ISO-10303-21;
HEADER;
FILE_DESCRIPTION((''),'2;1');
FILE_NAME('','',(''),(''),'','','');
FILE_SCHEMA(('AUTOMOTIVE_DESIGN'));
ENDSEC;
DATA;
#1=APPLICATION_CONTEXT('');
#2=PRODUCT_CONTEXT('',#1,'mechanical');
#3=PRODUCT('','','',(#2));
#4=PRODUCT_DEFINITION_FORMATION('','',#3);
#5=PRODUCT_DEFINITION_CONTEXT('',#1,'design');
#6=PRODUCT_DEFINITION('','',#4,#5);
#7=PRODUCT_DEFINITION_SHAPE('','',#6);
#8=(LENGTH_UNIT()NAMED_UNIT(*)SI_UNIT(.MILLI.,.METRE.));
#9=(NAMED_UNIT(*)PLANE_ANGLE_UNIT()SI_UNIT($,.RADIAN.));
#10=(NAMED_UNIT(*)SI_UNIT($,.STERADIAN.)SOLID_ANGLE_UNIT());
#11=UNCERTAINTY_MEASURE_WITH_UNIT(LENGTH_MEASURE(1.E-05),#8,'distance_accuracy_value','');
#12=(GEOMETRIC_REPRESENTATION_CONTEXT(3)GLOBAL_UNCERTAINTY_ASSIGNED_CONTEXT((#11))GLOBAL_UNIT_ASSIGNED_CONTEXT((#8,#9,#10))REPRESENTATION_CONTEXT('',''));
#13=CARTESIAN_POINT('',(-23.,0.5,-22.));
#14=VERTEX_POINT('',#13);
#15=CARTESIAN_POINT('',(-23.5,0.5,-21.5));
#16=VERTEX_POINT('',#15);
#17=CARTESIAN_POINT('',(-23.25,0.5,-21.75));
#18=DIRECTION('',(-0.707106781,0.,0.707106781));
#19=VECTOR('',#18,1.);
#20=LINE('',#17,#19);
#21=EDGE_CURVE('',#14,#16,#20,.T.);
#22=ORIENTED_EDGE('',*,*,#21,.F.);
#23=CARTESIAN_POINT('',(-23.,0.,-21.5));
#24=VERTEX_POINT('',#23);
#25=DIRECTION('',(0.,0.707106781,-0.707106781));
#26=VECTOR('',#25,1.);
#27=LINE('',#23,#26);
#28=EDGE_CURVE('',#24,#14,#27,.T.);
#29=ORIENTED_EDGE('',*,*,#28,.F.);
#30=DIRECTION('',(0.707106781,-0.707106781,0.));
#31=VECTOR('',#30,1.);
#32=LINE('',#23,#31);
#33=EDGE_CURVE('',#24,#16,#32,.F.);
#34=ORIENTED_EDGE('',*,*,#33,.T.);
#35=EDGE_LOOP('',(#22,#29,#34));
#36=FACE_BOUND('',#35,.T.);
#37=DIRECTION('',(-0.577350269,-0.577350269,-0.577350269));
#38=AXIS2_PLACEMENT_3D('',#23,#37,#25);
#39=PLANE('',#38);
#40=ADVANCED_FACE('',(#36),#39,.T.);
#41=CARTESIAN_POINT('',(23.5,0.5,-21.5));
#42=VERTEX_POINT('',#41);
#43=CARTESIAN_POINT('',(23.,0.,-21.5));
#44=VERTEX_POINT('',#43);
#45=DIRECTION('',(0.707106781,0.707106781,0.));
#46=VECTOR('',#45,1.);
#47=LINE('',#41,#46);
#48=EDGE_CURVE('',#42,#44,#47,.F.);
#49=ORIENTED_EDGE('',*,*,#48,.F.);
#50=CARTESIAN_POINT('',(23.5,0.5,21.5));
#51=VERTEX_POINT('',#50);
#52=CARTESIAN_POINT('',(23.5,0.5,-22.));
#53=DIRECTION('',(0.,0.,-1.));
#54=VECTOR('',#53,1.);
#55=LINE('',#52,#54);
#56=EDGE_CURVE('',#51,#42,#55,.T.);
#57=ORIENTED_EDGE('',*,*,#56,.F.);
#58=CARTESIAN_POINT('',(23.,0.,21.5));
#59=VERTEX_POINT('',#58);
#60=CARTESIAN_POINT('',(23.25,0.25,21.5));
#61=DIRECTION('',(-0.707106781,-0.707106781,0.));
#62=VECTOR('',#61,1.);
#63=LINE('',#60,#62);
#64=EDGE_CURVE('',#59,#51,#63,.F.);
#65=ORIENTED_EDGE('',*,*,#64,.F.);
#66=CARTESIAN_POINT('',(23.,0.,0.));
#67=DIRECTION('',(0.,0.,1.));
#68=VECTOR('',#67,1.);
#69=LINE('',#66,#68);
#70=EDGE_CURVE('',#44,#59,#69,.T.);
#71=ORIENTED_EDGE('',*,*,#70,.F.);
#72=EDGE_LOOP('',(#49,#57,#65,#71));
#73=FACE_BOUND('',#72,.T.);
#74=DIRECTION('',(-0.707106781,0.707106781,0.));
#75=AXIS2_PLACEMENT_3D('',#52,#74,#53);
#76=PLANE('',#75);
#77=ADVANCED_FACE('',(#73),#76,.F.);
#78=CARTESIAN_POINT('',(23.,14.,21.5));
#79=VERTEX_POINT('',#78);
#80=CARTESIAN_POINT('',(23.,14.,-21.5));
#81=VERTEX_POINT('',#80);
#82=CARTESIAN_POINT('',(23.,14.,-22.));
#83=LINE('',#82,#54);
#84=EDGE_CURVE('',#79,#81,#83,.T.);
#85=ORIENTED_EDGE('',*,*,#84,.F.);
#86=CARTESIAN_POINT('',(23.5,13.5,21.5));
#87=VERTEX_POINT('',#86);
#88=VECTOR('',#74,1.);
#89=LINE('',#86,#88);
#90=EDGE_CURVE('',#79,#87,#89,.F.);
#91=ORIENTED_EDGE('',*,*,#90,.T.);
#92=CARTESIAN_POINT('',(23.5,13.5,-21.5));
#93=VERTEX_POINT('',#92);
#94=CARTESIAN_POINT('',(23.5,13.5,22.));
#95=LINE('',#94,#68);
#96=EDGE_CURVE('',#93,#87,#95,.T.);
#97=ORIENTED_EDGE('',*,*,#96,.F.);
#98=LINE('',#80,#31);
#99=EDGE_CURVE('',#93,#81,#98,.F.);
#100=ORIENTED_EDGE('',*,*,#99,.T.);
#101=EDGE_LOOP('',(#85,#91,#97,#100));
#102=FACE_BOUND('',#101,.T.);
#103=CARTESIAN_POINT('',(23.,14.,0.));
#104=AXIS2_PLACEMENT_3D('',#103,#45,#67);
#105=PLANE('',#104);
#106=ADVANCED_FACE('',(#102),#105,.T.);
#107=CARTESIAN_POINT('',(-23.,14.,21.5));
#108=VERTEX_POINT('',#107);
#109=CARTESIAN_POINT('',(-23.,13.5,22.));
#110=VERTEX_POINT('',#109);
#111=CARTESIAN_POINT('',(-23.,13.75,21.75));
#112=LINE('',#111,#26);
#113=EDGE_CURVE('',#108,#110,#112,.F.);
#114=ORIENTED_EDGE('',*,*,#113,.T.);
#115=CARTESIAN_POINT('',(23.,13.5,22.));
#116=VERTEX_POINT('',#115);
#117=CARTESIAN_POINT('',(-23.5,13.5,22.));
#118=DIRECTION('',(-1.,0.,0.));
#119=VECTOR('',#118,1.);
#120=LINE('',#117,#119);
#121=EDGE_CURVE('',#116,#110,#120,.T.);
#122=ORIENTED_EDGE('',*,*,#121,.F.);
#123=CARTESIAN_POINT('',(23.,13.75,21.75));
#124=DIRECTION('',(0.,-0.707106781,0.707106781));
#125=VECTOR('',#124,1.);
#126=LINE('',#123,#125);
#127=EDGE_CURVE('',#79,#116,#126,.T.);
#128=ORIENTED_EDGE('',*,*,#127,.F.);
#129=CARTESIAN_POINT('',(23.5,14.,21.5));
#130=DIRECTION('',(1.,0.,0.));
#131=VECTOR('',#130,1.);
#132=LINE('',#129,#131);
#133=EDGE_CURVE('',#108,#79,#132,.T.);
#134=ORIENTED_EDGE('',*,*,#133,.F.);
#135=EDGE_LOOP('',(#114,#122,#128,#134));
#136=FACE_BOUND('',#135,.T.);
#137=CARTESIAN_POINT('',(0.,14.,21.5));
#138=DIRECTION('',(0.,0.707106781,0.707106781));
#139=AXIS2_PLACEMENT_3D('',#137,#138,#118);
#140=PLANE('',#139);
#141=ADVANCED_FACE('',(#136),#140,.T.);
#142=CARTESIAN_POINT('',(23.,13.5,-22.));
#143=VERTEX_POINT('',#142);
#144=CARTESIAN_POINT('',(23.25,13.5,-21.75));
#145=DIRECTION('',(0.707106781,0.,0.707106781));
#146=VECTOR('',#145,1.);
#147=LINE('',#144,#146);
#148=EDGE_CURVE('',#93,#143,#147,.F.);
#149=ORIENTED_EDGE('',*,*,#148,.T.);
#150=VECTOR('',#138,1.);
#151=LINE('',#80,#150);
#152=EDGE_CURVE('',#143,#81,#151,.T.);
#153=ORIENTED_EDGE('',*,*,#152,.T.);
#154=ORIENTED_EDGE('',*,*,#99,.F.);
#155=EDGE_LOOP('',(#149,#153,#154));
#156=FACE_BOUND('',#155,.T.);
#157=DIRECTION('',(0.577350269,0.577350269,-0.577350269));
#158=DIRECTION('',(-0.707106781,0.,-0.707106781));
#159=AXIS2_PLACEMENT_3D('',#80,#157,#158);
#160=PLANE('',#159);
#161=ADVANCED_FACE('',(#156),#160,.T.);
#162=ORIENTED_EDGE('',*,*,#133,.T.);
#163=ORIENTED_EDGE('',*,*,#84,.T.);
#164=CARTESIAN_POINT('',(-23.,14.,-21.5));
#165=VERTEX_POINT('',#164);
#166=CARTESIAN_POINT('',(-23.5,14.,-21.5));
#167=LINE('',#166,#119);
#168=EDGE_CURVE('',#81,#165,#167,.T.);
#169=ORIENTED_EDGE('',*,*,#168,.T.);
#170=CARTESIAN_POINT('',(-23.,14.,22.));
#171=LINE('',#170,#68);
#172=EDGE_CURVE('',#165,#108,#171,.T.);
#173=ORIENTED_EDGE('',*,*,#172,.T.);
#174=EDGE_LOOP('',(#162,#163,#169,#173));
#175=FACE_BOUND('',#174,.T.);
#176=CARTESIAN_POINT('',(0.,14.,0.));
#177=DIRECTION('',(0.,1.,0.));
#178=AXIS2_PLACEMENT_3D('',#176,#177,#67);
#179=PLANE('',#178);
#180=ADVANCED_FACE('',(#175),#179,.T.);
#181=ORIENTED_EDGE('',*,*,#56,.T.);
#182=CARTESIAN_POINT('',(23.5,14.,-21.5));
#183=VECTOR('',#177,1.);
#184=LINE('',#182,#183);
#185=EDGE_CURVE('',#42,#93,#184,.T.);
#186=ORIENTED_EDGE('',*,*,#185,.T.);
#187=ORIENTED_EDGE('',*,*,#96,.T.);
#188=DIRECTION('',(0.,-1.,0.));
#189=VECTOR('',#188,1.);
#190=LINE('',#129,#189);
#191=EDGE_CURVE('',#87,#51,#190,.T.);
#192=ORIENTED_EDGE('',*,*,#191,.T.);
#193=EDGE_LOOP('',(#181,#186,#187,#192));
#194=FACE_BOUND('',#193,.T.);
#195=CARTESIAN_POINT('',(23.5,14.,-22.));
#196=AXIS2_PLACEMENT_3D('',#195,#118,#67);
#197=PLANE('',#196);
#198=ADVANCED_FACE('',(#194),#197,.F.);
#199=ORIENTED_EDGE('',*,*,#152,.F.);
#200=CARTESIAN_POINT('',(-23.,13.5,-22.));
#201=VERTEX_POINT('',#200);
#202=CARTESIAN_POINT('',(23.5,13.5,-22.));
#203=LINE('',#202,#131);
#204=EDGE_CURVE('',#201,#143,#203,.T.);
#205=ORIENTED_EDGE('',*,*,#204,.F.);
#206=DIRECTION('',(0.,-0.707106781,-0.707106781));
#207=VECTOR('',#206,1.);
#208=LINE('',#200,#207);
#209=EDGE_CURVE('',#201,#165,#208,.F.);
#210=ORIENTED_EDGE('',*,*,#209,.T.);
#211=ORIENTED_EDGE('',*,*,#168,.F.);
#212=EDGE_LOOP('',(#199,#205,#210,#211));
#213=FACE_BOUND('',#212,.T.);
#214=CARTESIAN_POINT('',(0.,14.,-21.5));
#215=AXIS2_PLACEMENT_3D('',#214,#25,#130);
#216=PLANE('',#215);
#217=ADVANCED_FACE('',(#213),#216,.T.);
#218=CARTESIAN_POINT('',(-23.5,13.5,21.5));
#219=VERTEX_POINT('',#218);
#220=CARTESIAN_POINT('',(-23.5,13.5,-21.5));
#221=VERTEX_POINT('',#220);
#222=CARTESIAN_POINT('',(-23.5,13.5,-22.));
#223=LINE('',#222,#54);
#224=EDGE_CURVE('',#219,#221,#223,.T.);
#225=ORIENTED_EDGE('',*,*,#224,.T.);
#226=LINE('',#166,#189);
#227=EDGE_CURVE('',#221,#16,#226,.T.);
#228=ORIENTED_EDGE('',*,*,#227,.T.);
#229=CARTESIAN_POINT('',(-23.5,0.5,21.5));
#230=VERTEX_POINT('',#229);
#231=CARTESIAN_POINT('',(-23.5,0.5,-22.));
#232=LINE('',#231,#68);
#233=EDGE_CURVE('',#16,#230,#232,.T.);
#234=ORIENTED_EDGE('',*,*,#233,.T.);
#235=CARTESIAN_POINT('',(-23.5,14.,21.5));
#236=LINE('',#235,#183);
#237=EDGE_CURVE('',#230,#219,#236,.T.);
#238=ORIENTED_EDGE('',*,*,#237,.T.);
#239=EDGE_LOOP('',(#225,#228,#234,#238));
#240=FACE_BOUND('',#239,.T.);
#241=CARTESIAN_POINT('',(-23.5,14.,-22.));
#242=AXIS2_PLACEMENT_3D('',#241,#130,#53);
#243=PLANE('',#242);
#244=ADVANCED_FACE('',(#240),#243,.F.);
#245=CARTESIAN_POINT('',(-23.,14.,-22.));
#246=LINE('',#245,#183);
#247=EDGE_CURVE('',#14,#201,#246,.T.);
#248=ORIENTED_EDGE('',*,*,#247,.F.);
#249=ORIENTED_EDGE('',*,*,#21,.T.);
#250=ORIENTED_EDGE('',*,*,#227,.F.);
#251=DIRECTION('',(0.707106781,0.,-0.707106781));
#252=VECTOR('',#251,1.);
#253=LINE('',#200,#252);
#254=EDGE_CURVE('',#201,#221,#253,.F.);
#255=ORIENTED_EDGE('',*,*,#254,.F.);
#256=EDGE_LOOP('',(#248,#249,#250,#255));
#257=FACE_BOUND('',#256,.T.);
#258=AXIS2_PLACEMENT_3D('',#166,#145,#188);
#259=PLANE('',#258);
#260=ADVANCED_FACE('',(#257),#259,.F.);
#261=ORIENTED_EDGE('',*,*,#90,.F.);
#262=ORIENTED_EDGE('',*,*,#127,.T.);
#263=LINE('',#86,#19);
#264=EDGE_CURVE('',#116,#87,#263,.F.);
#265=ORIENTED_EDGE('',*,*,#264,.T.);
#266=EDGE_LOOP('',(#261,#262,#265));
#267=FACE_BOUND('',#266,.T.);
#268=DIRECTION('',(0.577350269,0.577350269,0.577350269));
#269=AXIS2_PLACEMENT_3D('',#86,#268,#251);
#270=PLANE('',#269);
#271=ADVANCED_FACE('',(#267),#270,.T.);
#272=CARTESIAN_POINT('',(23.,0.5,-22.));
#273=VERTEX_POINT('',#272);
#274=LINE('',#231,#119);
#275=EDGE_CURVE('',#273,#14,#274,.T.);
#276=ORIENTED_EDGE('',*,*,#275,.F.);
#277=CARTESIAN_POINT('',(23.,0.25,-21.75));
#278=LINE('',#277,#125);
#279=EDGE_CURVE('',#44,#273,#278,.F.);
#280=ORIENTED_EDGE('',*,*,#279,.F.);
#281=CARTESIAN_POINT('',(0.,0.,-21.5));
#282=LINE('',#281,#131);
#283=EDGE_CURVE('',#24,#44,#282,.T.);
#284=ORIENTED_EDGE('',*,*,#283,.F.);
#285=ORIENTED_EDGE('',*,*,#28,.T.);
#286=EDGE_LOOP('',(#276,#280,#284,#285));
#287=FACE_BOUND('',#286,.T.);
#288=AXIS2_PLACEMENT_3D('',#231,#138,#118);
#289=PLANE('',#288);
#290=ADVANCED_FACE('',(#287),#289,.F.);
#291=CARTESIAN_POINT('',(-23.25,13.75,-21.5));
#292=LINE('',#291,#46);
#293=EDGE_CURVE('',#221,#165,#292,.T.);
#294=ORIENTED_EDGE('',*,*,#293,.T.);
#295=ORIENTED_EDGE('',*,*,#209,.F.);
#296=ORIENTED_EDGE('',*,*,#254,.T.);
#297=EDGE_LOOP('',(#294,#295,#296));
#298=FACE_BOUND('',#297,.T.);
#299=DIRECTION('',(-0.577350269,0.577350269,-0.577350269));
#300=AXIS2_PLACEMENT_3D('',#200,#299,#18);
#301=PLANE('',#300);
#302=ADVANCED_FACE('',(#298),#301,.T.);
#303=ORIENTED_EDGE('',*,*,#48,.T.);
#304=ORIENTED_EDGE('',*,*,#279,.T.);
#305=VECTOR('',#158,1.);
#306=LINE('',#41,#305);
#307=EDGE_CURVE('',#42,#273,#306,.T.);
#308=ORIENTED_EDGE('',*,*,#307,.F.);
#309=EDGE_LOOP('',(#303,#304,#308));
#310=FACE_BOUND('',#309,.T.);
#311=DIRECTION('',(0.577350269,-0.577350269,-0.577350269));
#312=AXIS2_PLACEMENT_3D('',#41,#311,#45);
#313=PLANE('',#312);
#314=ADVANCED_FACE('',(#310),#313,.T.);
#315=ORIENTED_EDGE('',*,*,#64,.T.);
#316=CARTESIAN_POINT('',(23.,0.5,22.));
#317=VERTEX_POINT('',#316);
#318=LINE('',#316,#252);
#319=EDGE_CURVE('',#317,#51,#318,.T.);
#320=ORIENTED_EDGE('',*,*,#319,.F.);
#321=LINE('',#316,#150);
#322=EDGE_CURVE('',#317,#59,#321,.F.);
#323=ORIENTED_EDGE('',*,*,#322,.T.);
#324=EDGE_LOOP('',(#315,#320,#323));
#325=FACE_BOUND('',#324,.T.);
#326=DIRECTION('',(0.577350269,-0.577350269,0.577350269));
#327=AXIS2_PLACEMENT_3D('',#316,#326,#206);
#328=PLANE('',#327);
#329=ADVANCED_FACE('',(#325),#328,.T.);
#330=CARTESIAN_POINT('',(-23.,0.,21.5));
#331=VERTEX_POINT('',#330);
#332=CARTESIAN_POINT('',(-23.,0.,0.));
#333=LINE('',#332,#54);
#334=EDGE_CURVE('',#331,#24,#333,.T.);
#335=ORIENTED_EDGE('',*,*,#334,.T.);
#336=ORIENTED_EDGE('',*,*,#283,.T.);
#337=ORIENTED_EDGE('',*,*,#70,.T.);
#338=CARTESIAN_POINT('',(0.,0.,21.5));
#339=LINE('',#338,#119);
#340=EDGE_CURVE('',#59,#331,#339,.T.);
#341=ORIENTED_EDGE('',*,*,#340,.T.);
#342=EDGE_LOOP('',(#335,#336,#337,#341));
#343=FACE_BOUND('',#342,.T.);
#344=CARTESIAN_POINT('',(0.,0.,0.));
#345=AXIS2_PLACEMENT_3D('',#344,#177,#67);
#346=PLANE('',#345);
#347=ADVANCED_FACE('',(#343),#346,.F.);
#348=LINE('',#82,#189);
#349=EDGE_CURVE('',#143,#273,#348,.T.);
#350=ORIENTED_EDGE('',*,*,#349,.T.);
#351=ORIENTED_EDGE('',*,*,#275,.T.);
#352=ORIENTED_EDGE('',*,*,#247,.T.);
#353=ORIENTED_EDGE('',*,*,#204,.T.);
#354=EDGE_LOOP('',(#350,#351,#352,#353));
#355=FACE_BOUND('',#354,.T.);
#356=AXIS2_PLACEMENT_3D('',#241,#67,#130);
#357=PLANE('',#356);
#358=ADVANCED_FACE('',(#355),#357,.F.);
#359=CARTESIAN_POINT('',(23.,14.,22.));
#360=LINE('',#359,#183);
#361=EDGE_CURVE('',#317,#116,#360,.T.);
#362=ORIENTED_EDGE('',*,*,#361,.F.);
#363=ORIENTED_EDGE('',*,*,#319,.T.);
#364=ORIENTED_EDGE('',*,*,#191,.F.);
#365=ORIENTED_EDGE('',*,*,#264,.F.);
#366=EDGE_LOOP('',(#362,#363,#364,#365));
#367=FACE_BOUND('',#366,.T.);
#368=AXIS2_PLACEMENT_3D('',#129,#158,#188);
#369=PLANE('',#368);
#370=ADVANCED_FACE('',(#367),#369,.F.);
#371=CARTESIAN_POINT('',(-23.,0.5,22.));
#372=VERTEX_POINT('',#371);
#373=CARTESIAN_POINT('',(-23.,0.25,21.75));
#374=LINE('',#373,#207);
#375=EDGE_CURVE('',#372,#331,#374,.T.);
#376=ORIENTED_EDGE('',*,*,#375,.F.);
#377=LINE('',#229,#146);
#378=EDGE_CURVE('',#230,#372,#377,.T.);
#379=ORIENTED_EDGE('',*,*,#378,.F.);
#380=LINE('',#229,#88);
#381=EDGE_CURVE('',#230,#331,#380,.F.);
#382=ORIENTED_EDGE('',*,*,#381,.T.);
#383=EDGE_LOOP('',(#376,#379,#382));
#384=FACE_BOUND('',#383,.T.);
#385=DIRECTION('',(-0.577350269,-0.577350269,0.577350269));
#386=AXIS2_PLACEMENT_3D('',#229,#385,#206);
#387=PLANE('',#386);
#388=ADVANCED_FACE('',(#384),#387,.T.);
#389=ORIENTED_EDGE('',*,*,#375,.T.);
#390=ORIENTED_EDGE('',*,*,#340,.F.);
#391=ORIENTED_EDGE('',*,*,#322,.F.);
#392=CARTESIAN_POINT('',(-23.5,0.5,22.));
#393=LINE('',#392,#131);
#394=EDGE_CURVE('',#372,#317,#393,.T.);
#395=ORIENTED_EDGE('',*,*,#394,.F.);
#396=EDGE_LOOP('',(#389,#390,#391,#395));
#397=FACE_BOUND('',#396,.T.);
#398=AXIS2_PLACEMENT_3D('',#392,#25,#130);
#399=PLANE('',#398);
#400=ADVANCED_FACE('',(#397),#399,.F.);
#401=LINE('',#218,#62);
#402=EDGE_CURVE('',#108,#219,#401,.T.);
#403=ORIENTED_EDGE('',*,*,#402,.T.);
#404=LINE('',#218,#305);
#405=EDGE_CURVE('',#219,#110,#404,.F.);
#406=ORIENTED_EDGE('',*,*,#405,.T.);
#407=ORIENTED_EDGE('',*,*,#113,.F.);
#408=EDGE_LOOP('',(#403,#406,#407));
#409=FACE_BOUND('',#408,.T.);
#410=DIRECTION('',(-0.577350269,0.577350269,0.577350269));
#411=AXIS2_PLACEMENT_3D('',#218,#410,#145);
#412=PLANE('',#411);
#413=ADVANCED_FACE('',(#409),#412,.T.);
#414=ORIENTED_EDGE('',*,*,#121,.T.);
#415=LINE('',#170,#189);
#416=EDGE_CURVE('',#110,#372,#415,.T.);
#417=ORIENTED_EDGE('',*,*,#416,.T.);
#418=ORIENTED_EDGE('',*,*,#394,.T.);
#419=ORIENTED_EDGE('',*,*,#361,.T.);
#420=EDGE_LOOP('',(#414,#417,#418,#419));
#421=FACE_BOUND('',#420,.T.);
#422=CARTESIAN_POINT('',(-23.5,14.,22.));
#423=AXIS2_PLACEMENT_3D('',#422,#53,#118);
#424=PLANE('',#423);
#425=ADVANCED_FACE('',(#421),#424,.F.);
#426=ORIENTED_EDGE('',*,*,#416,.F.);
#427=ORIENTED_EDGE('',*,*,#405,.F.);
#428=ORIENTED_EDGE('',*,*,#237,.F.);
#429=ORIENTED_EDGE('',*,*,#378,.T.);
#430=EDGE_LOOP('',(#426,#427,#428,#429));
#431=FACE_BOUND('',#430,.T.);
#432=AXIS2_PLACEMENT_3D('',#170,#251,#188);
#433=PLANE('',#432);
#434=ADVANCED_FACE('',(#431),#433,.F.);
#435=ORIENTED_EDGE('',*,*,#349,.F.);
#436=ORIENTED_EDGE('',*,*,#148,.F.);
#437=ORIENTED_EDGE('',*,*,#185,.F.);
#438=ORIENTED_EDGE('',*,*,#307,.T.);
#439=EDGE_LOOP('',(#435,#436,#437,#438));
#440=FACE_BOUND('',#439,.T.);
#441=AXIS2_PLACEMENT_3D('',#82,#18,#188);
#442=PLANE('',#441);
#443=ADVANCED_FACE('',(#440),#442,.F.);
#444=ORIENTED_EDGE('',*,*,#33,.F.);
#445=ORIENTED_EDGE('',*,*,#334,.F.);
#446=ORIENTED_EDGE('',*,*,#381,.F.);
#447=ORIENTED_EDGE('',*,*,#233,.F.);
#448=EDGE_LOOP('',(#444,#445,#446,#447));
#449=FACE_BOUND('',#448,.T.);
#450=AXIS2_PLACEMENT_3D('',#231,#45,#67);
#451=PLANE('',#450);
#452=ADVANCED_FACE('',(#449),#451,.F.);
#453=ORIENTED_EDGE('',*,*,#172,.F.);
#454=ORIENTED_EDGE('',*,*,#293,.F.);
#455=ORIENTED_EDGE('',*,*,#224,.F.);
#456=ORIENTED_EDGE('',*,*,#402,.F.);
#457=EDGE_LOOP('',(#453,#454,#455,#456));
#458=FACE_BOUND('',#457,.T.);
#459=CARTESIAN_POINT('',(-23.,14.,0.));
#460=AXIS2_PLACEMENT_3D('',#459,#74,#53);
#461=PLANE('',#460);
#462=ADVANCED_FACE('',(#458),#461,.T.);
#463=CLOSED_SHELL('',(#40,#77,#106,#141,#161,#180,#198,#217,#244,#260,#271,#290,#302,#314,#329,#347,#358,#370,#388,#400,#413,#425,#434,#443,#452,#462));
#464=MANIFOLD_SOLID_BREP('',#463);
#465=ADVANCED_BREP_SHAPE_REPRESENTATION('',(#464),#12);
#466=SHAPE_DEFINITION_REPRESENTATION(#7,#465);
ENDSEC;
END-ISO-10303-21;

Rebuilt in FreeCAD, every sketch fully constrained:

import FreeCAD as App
import Part
import Sketcher

V = App.Vector
Q = App.Units.Quantity


def add_polygon(sketch, points):
    """Adds a closed chain of lines whose ends are joined by coincident constraints."""
    first, n = sketch.GeometryCount, len(points)
    for a, b in zip(points, points[1:] + points[:1]):
        sketch.addGeometry(Part.LineSegment(App.Vector(*a, 0), App.Vector(*b, 0)), False)
    for i in range(n):
        sketch.addConstraint(Sketcher.Constraint("Coincident", first + i, 2, first + (i + 1) % n, 1))

doc = App.newDocument("Part")
body = doc.addObject("PartDesign::Body", "Body")

sketch1 = body.newObject("Sketcher::SketchObject", "Sketch")
sketch1.AttachmentSupport = (doc.getObject("XZ_Plane"), [""])
sketch1.MapMode = "FlatFace"
add_polygon(sketch1, [(-24, -22), (-24, 22), (24, 22), (24, -22)])
sketch1.addConstraint(Sketcher.Constraint("Vertical", 0))
sketch1.addConstraint(Sketcher.Constraint("Horizontal", 1))
sketch1.addConstraint(Sketcher.Constraint("Vertical", 2))
sketch1.addConstraint(Sketcher.Constraint("Horizontal", 3))
sketch1.addConstraint(Sketcher.Constraint("Symmetric", 0, 2, 2, 2, -1, 1))
sketch1.addConstraint(Sketcher.Constraint("DistanceX", 1, 1, 1, 2, Q("47 mm")))
sketch1.addConstraint(Sketcher.Constraint("DistanceY", 0, 1, 0, 2, Q("44 mm")))
pad1 = body.newObject("PartDesign::Pad", "Pad")
pad1.Profile = sketch1
pad1.Length = 14
pad1.Reversed = True
doc.recompute()

chamfer = body.newObject("PartDesign::Chamfer", "Chamfer")
chamfer.Base = (pad1, ["Edge1"])
chamfer.UseAllEdges = True
chamfer.Size = 0.5

doc.recompute()
